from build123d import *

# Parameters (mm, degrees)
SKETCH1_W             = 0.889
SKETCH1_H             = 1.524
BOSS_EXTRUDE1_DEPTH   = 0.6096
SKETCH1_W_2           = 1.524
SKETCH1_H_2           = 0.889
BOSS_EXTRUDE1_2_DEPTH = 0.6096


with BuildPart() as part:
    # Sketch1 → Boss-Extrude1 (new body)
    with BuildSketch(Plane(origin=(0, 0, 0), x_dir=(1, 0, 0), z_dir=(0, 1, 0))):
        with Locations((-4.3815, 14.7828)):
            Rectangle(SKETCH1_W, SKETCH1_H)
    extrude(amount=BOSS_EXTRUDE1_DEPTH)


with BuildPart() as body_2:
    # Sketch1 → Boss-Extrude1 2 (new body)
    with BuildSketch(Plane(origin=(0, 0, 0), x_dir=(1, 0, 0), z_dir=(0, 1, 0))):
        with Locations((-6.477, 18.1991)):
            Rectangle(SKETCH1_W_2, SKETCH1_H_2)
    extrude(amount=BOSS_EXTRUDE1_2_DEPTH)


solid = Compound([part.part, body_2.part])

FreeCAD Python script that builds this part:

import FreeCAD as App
import Part
import Sketcher

V = App.Vector
Q = App.Units.Quantity

doc = App.newDocument("Part")
params = doc.addObject("Spreadsheet::Sheet", "Params")
for row, (alias, value) in enumerate([
    ("sketch1_height", "0.06 in"),
    ("sketch1_width", "0.035 in"),
    ("pad1_length", "0.024 in"),
    ("sketch2_width", "0.06 in"),
    ("sketch2_height", "0.035 in"),
    ("pad2_length", "0.024 in"),
], start=1):
    params.set(f"A{row}", alias)
    params.set(f"B{row}", "=" + value)
    params.setAlias(f"B{row}", alias)

body = doc.addObject("PartDesign::Body", "Body")

# Sketch on XZ plane
sketch1 = body.newObject("Sketcher::SketchObject", "Sketch")
sketch1.AttachmentSupport = (doc.getObject("XZ_Plane"), [""])
sketch1.MapMode = "FlatFace"
sketch1.addGeometry([
    Part.LineSegment(V(-4.8, -15.5, 0), V(-4.8, -14, 0)),
    Part.LineSegment(V(-4.8, -14, 0), V(-3.9, -14, 0)),
    Part.LineSegment(V(-3.9, -14, 0), V(-3.9, -15.5, 0)),
    Part.LineSegment(V(-3.9, -15.5, 0), V(-4.8, -15.5, 0)),
], False)
sketch1.addConstraint([
    Sketcher.Constraint("Coincident", 0, 2, 1, 1),
    Sketcher.Constraint("Coincident", 1, 2, 2, 1),
    Sketcher.Constraint("Coincident", 2, 2, 3, 1),
    Sketcher.Constraint("Coincident", 3, 2, 0, 1),
    Sketcher.Constraint("Vertical", 0),
    Sketcher.Constraint("Horizontal", 1),
    Sketcher.Constraint("Vertical", 2),
    Sketcher.Constraint("Horizontal", 3),
    Sketcher.Constraint("DistanceY", 0, 1, 0, 2, Q("0.06 in")),
    Sketcher.Constraint("DistanceX", 1, 1, 1, 2, Q("0.035 in")),
    Sketcher.Constraint("DistanceX", 0, 2, -1, 1, Q("0.19 in")),
    Sketcher.Constraint("DistanceY", 0, 2, -1, 1, Q("0.552 in")),
])
sketch1.setExpression("Constraints[8]", "Params.sketch1_height")
sketch1.setExpression("Constraints[9]", "Params.sketch1_width")
pad1 = body.newObject("PartDesign::Pad", "Pad")
pad1.Profile = sketch1
pad1.setExpression("Length", "Params.pad1_length")
pad1.Reversed = True
body2 = doc.addObject("PartDesign::Body", "Body001")

# Sketch on XZ plane
sketch2 = body2.newObject("Sketcher::SketchObject", "Sketch001")
sketch2.AttachmentSupport = (doc.getObject("XZ_Plane001"), [""])
sketch2.MapMode = "FlatFace"
sketch2.addGeometry([
    Part.LineSegment(V(-7.2, -18.6, 0), V(-7.2, -17.8, 0)),
    Part.LineSegment(V(-7.2, -17.8, 0), V(-5.7, -17.8, 0)),
    Part.LineSegment(V(-5.7, -17.8, 0), V(-5.7, -18.6, 0)),
    Part.LineSegment(V(-5.7, -18.6, 0), V(-7.2, -18.6, 0)),
], False)
sketch2.addConstraint([
    Sketcher.Constraint("Coincident", 0, 2, 1, 1),
    Sketcher.Constraint("Coincident", 1, 2, 2, 1),
    Sketcher.Constraint("Coincident", 2, 2, 3, 1),
    Sketcher.Constraint("Coincident", 3, 2, 0, 1),
    Sketcher.Constraint("Vertical", 0),
    Sketcher.Constraint("Horizontal", 1),
    Sketcher.Constraint("Vertical", 2),
    Sketcher.Constraint("Horizontal", 3),
    Sketcher.Constraint("DistanceX", 1, 1, 1, 2, Q("0.06 in")),
    Sketcher.Constraint("DistanceY", 0, 1, 0, 2, Q("0.035 in")),
    Sketcher.Constraint("DistanceX", 0, 2, -1, 1, Q("0.285 in")),
    Sketcher.Constraint("DistanceY", 0, 2, -1, 1, Q("0.699 in")),
])
sketch2.setExpression("Constraints[8]", "Params.sketch2_width")
sketch2.setExpression("Constraints[9]", "Params.sketch2_height")
pad2 = body2.newObject("PartDesign::Pad", "Pad001")
pad2.Profile = sketch2
pad2.setExpression("Length", "Params.pad2_length")
pad2.Reversed = True

doc.recompute()
